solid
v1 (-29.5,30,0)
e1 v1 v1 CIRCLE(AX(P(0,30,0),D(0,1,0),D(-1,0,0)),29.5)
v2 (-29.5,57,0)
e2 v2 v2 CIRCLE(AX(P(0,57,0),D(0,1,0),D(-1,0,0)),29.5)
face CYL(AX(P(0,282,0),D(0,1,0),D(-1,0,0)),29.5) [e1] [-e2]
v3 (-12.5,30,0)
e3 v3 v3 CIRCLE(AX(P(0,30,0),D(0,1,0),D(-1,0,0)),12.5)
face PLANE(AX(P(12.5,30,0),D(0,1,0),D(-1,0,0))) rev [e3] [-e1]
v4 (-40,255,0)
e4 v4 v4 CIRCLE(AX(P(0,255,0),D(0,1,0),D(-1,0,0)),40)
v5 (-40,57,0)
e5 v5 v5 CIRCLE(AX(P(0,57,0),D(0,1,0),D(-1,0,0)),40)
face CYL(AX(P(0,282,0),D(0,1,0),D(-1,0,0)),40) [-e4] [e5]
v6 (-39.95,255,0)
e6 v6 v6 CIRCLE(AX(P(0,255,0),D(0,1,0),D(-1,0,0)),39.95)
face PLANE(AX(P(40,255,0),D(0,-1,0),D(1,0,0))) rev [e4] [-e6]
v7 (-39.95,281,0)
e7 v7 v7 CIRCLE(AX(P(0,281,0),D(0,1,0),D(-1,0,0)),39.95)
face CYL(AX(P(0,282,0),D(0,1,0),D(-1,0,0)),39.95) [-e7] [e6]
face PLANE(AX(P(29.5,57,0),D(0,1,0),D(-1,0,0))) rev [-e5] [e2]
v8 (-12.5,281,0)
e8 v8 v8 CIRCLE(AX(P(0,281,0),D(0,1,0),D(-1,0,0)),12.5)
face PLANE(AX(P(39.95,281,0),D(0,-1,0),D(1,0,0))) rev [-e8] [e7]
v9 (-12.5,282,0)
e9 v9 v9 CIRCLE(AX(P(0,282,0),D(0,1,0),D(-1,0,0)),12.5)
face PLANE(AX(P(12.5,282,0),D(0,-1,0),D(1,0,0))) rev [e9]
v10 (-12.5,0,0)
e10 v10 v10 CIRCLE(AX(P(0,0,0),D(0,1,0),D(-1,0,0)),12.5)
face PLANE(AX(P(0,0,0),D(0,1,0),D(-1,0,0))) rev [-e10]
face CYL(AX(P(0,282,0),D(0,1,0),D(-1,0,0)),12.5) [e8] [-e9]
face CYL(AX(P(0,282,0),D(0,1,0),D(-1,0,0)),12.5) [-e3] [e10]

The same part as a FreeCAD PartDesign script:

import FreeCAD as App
import Part
import Sketcher

V = App.Vector
Q = App.Units.Quantity

doc = App.newDocument("Part")
body = doc.addObject("PartDesign::Body", "Body")

# Sketch on XY plane
sketch1 = body.newObject("Sketcher::SketchObject", "Sketch")
sketch1.AttachmentSupport = (doc.getObject("XY_Plane"), [""])
sketch1.MapMode = "FlatFace"
sketch1.addGeometry(Part.LineSegment(V(0, 0, 0), V(12.5, 0, 0)), False)
sketch1.addGeometry(Part.LineSegment(V(12.5, 0, 0), V(12.5, 30, 0)), False)
sketch1.addGeometry(Part.LineSegment(V(12.5, 30, 0), V(29.5, 30, 0)), False)
sketch1.addGeometry(Part.LineSegment(V(29.5, 30, 0), V(29.5, 57, 0)), False)
sketch1.addGeometry(Part.LineSegment(V(29.5, 57, 0), V(40, 57, 0)), False)
sketch1.addGeometry(Part.LineSegment(V(40, 57, 0), V(40, 255, 0)), False)
sketch1.addGeometry(Part.LineSegment(V(40, 255, 0), V(39.95, 255, 0)), False)
sketch1.addGeometry(Part.LineSegment(V(39.95, 255, 0), V(39.95, 281, 0)), False)
sketch1.addGeometry(Part.LineSegment(V(39.95, 281, 0), V(12.5, 281, 0)), False)
sketch1.addGeometry(Part.LineSegment(V(12.5, 281, 0), V(12.5, 282, 0)), False)
sketch1.addGeometry(Part.LineSegment(V(12.5, 282, 0), V(0, 282, 0)), False)
sketch1.addGeometry(Part.LineSegment(V(0, 282, 0), V(0, 0, 0)), False)
sketch1.addConstraint(Sketcher.Constraint("Coincident", 0, 2, 1, 1))
sketch1.addConstraint(Sketcher.Constraint("Coincident", 1, 2, 2, 1))
sketch1.addConstraint(Sketcher.Constraint("Coincident", 2, 2, 3, 1))
sketch1.addConstraint(Sketcher.Constraint("Coincident", 3, 2, 4, 1))
sketch1.addConstraint(Sketcher.Constraint("Coincident", 4, 2, 5, 1))
sketch1.addConstraint(Sketcher.Constraint("Coincident", 5, 2, 6, 1))
sketch1.addConstraint(Sketcher.Constraint("Coincident", 6, 2, 7, 1))
sketch1.addConstraint(Sketcher.Constraint("Coincident", 7, 2, 8, 1))
sketch1.addConstraint(Sketcher.Constraint("Coincident", 8, 2, 9, 1))
sketch1.addConstraint(Sketcher.Constraint("Coincident", 9, 2, 10, 1))
sketch1.addConstraint(Sketcher.Constraint("Coincident", 10, 2, 11, 1))
sketch1.addConstraint(Sketcher.Constraint("Coincident", 11, 2, 0, 1))
sketch1.addConstraint(Sketcher.Constraint("Horizontal", 0))
sketch1.addConstraint(Sketcher.Constraint("Vertical", 1))
sketch1.addConstraint(Sketcher.Constraint("Horizontal", 2))
sketch1.addConstraint(Sketcher.Constraint("Vertical", 3))
sketch1.addConstraint(Sketcher.Constraint("Horizontal", 4))
sketch1.addConstraint(Sketcher.Constraint("Vertical", 5))
sketch1.addConstraint(Sketcher.Constraint("Horizontal", 6))
sketch1.addConstraint(Sketcher.Constraint("Vertical", 7))
sketch1.addConstraint(Sketcher.Constraint("Horizontal", 8))
sketch1.addConstraint(Sketcher.Constraint("Vertical", 9))
sketch1.addConstraint(Sketcher.Constraint("Horizontal", 10))
sketch1.addConstraint(Sketcher.Constraint("Vertical", 11))
sketch1.addConstraint(Sketcher.Constraint("Coincident", 11, 2, -1, 1))
sketch1.addConstraint(Sketcher.Constraint("Vertical", 1, 2, 8, 2))
sketch1.addConstraint(Sketcher.Constraint("DistanceX", 2, 1, 2, 2, Q("17 mm")))
sketch1.addConstraint(Sketcher.Constraint("DistanceY", 1, 1, 1, 2, Q("30 mm")))
sketch1.addConstraint(Sketcher.Constraint("DistanceY", 3, 1, 3, 2, Q("27 mm")))
sketch1.addConstraint(Sketcher.Constraint("DistanceY", 5, 1, 5, 2, Q("198 mm")))
sketch1.addConstraint(Sketcher.Constraint("DistanceY", 7, 1, 7, 2, Q("26 mm")))
sketch1.addConstraint(Sketcher.Constraint("DistanceY", 9, 1, 9, 2, Q("1 mm")))
sketch1.addConstraint(Sketcher.Constraint("DistanceX", 0, 1, 0, 2, Q("12.5 mm")))
sketch1.addConstraint(Sketcher.Constraint("DistanceX", 4, 1, 4, 2, Q("10.5 mm")))
sketch1.addConstraint(Sketcher.Constraint("DistanceX", 6, 2, 6, 1, Q("0.05 mm")))
revolution = body.newObject("PartDesign::Revolution", "Revolution")
revolution.Profile = sketch1
revolution.ReferenceAxis = (sketch1, ["V_Axis"])
revolution.Angle = 360

doc.recompute()
